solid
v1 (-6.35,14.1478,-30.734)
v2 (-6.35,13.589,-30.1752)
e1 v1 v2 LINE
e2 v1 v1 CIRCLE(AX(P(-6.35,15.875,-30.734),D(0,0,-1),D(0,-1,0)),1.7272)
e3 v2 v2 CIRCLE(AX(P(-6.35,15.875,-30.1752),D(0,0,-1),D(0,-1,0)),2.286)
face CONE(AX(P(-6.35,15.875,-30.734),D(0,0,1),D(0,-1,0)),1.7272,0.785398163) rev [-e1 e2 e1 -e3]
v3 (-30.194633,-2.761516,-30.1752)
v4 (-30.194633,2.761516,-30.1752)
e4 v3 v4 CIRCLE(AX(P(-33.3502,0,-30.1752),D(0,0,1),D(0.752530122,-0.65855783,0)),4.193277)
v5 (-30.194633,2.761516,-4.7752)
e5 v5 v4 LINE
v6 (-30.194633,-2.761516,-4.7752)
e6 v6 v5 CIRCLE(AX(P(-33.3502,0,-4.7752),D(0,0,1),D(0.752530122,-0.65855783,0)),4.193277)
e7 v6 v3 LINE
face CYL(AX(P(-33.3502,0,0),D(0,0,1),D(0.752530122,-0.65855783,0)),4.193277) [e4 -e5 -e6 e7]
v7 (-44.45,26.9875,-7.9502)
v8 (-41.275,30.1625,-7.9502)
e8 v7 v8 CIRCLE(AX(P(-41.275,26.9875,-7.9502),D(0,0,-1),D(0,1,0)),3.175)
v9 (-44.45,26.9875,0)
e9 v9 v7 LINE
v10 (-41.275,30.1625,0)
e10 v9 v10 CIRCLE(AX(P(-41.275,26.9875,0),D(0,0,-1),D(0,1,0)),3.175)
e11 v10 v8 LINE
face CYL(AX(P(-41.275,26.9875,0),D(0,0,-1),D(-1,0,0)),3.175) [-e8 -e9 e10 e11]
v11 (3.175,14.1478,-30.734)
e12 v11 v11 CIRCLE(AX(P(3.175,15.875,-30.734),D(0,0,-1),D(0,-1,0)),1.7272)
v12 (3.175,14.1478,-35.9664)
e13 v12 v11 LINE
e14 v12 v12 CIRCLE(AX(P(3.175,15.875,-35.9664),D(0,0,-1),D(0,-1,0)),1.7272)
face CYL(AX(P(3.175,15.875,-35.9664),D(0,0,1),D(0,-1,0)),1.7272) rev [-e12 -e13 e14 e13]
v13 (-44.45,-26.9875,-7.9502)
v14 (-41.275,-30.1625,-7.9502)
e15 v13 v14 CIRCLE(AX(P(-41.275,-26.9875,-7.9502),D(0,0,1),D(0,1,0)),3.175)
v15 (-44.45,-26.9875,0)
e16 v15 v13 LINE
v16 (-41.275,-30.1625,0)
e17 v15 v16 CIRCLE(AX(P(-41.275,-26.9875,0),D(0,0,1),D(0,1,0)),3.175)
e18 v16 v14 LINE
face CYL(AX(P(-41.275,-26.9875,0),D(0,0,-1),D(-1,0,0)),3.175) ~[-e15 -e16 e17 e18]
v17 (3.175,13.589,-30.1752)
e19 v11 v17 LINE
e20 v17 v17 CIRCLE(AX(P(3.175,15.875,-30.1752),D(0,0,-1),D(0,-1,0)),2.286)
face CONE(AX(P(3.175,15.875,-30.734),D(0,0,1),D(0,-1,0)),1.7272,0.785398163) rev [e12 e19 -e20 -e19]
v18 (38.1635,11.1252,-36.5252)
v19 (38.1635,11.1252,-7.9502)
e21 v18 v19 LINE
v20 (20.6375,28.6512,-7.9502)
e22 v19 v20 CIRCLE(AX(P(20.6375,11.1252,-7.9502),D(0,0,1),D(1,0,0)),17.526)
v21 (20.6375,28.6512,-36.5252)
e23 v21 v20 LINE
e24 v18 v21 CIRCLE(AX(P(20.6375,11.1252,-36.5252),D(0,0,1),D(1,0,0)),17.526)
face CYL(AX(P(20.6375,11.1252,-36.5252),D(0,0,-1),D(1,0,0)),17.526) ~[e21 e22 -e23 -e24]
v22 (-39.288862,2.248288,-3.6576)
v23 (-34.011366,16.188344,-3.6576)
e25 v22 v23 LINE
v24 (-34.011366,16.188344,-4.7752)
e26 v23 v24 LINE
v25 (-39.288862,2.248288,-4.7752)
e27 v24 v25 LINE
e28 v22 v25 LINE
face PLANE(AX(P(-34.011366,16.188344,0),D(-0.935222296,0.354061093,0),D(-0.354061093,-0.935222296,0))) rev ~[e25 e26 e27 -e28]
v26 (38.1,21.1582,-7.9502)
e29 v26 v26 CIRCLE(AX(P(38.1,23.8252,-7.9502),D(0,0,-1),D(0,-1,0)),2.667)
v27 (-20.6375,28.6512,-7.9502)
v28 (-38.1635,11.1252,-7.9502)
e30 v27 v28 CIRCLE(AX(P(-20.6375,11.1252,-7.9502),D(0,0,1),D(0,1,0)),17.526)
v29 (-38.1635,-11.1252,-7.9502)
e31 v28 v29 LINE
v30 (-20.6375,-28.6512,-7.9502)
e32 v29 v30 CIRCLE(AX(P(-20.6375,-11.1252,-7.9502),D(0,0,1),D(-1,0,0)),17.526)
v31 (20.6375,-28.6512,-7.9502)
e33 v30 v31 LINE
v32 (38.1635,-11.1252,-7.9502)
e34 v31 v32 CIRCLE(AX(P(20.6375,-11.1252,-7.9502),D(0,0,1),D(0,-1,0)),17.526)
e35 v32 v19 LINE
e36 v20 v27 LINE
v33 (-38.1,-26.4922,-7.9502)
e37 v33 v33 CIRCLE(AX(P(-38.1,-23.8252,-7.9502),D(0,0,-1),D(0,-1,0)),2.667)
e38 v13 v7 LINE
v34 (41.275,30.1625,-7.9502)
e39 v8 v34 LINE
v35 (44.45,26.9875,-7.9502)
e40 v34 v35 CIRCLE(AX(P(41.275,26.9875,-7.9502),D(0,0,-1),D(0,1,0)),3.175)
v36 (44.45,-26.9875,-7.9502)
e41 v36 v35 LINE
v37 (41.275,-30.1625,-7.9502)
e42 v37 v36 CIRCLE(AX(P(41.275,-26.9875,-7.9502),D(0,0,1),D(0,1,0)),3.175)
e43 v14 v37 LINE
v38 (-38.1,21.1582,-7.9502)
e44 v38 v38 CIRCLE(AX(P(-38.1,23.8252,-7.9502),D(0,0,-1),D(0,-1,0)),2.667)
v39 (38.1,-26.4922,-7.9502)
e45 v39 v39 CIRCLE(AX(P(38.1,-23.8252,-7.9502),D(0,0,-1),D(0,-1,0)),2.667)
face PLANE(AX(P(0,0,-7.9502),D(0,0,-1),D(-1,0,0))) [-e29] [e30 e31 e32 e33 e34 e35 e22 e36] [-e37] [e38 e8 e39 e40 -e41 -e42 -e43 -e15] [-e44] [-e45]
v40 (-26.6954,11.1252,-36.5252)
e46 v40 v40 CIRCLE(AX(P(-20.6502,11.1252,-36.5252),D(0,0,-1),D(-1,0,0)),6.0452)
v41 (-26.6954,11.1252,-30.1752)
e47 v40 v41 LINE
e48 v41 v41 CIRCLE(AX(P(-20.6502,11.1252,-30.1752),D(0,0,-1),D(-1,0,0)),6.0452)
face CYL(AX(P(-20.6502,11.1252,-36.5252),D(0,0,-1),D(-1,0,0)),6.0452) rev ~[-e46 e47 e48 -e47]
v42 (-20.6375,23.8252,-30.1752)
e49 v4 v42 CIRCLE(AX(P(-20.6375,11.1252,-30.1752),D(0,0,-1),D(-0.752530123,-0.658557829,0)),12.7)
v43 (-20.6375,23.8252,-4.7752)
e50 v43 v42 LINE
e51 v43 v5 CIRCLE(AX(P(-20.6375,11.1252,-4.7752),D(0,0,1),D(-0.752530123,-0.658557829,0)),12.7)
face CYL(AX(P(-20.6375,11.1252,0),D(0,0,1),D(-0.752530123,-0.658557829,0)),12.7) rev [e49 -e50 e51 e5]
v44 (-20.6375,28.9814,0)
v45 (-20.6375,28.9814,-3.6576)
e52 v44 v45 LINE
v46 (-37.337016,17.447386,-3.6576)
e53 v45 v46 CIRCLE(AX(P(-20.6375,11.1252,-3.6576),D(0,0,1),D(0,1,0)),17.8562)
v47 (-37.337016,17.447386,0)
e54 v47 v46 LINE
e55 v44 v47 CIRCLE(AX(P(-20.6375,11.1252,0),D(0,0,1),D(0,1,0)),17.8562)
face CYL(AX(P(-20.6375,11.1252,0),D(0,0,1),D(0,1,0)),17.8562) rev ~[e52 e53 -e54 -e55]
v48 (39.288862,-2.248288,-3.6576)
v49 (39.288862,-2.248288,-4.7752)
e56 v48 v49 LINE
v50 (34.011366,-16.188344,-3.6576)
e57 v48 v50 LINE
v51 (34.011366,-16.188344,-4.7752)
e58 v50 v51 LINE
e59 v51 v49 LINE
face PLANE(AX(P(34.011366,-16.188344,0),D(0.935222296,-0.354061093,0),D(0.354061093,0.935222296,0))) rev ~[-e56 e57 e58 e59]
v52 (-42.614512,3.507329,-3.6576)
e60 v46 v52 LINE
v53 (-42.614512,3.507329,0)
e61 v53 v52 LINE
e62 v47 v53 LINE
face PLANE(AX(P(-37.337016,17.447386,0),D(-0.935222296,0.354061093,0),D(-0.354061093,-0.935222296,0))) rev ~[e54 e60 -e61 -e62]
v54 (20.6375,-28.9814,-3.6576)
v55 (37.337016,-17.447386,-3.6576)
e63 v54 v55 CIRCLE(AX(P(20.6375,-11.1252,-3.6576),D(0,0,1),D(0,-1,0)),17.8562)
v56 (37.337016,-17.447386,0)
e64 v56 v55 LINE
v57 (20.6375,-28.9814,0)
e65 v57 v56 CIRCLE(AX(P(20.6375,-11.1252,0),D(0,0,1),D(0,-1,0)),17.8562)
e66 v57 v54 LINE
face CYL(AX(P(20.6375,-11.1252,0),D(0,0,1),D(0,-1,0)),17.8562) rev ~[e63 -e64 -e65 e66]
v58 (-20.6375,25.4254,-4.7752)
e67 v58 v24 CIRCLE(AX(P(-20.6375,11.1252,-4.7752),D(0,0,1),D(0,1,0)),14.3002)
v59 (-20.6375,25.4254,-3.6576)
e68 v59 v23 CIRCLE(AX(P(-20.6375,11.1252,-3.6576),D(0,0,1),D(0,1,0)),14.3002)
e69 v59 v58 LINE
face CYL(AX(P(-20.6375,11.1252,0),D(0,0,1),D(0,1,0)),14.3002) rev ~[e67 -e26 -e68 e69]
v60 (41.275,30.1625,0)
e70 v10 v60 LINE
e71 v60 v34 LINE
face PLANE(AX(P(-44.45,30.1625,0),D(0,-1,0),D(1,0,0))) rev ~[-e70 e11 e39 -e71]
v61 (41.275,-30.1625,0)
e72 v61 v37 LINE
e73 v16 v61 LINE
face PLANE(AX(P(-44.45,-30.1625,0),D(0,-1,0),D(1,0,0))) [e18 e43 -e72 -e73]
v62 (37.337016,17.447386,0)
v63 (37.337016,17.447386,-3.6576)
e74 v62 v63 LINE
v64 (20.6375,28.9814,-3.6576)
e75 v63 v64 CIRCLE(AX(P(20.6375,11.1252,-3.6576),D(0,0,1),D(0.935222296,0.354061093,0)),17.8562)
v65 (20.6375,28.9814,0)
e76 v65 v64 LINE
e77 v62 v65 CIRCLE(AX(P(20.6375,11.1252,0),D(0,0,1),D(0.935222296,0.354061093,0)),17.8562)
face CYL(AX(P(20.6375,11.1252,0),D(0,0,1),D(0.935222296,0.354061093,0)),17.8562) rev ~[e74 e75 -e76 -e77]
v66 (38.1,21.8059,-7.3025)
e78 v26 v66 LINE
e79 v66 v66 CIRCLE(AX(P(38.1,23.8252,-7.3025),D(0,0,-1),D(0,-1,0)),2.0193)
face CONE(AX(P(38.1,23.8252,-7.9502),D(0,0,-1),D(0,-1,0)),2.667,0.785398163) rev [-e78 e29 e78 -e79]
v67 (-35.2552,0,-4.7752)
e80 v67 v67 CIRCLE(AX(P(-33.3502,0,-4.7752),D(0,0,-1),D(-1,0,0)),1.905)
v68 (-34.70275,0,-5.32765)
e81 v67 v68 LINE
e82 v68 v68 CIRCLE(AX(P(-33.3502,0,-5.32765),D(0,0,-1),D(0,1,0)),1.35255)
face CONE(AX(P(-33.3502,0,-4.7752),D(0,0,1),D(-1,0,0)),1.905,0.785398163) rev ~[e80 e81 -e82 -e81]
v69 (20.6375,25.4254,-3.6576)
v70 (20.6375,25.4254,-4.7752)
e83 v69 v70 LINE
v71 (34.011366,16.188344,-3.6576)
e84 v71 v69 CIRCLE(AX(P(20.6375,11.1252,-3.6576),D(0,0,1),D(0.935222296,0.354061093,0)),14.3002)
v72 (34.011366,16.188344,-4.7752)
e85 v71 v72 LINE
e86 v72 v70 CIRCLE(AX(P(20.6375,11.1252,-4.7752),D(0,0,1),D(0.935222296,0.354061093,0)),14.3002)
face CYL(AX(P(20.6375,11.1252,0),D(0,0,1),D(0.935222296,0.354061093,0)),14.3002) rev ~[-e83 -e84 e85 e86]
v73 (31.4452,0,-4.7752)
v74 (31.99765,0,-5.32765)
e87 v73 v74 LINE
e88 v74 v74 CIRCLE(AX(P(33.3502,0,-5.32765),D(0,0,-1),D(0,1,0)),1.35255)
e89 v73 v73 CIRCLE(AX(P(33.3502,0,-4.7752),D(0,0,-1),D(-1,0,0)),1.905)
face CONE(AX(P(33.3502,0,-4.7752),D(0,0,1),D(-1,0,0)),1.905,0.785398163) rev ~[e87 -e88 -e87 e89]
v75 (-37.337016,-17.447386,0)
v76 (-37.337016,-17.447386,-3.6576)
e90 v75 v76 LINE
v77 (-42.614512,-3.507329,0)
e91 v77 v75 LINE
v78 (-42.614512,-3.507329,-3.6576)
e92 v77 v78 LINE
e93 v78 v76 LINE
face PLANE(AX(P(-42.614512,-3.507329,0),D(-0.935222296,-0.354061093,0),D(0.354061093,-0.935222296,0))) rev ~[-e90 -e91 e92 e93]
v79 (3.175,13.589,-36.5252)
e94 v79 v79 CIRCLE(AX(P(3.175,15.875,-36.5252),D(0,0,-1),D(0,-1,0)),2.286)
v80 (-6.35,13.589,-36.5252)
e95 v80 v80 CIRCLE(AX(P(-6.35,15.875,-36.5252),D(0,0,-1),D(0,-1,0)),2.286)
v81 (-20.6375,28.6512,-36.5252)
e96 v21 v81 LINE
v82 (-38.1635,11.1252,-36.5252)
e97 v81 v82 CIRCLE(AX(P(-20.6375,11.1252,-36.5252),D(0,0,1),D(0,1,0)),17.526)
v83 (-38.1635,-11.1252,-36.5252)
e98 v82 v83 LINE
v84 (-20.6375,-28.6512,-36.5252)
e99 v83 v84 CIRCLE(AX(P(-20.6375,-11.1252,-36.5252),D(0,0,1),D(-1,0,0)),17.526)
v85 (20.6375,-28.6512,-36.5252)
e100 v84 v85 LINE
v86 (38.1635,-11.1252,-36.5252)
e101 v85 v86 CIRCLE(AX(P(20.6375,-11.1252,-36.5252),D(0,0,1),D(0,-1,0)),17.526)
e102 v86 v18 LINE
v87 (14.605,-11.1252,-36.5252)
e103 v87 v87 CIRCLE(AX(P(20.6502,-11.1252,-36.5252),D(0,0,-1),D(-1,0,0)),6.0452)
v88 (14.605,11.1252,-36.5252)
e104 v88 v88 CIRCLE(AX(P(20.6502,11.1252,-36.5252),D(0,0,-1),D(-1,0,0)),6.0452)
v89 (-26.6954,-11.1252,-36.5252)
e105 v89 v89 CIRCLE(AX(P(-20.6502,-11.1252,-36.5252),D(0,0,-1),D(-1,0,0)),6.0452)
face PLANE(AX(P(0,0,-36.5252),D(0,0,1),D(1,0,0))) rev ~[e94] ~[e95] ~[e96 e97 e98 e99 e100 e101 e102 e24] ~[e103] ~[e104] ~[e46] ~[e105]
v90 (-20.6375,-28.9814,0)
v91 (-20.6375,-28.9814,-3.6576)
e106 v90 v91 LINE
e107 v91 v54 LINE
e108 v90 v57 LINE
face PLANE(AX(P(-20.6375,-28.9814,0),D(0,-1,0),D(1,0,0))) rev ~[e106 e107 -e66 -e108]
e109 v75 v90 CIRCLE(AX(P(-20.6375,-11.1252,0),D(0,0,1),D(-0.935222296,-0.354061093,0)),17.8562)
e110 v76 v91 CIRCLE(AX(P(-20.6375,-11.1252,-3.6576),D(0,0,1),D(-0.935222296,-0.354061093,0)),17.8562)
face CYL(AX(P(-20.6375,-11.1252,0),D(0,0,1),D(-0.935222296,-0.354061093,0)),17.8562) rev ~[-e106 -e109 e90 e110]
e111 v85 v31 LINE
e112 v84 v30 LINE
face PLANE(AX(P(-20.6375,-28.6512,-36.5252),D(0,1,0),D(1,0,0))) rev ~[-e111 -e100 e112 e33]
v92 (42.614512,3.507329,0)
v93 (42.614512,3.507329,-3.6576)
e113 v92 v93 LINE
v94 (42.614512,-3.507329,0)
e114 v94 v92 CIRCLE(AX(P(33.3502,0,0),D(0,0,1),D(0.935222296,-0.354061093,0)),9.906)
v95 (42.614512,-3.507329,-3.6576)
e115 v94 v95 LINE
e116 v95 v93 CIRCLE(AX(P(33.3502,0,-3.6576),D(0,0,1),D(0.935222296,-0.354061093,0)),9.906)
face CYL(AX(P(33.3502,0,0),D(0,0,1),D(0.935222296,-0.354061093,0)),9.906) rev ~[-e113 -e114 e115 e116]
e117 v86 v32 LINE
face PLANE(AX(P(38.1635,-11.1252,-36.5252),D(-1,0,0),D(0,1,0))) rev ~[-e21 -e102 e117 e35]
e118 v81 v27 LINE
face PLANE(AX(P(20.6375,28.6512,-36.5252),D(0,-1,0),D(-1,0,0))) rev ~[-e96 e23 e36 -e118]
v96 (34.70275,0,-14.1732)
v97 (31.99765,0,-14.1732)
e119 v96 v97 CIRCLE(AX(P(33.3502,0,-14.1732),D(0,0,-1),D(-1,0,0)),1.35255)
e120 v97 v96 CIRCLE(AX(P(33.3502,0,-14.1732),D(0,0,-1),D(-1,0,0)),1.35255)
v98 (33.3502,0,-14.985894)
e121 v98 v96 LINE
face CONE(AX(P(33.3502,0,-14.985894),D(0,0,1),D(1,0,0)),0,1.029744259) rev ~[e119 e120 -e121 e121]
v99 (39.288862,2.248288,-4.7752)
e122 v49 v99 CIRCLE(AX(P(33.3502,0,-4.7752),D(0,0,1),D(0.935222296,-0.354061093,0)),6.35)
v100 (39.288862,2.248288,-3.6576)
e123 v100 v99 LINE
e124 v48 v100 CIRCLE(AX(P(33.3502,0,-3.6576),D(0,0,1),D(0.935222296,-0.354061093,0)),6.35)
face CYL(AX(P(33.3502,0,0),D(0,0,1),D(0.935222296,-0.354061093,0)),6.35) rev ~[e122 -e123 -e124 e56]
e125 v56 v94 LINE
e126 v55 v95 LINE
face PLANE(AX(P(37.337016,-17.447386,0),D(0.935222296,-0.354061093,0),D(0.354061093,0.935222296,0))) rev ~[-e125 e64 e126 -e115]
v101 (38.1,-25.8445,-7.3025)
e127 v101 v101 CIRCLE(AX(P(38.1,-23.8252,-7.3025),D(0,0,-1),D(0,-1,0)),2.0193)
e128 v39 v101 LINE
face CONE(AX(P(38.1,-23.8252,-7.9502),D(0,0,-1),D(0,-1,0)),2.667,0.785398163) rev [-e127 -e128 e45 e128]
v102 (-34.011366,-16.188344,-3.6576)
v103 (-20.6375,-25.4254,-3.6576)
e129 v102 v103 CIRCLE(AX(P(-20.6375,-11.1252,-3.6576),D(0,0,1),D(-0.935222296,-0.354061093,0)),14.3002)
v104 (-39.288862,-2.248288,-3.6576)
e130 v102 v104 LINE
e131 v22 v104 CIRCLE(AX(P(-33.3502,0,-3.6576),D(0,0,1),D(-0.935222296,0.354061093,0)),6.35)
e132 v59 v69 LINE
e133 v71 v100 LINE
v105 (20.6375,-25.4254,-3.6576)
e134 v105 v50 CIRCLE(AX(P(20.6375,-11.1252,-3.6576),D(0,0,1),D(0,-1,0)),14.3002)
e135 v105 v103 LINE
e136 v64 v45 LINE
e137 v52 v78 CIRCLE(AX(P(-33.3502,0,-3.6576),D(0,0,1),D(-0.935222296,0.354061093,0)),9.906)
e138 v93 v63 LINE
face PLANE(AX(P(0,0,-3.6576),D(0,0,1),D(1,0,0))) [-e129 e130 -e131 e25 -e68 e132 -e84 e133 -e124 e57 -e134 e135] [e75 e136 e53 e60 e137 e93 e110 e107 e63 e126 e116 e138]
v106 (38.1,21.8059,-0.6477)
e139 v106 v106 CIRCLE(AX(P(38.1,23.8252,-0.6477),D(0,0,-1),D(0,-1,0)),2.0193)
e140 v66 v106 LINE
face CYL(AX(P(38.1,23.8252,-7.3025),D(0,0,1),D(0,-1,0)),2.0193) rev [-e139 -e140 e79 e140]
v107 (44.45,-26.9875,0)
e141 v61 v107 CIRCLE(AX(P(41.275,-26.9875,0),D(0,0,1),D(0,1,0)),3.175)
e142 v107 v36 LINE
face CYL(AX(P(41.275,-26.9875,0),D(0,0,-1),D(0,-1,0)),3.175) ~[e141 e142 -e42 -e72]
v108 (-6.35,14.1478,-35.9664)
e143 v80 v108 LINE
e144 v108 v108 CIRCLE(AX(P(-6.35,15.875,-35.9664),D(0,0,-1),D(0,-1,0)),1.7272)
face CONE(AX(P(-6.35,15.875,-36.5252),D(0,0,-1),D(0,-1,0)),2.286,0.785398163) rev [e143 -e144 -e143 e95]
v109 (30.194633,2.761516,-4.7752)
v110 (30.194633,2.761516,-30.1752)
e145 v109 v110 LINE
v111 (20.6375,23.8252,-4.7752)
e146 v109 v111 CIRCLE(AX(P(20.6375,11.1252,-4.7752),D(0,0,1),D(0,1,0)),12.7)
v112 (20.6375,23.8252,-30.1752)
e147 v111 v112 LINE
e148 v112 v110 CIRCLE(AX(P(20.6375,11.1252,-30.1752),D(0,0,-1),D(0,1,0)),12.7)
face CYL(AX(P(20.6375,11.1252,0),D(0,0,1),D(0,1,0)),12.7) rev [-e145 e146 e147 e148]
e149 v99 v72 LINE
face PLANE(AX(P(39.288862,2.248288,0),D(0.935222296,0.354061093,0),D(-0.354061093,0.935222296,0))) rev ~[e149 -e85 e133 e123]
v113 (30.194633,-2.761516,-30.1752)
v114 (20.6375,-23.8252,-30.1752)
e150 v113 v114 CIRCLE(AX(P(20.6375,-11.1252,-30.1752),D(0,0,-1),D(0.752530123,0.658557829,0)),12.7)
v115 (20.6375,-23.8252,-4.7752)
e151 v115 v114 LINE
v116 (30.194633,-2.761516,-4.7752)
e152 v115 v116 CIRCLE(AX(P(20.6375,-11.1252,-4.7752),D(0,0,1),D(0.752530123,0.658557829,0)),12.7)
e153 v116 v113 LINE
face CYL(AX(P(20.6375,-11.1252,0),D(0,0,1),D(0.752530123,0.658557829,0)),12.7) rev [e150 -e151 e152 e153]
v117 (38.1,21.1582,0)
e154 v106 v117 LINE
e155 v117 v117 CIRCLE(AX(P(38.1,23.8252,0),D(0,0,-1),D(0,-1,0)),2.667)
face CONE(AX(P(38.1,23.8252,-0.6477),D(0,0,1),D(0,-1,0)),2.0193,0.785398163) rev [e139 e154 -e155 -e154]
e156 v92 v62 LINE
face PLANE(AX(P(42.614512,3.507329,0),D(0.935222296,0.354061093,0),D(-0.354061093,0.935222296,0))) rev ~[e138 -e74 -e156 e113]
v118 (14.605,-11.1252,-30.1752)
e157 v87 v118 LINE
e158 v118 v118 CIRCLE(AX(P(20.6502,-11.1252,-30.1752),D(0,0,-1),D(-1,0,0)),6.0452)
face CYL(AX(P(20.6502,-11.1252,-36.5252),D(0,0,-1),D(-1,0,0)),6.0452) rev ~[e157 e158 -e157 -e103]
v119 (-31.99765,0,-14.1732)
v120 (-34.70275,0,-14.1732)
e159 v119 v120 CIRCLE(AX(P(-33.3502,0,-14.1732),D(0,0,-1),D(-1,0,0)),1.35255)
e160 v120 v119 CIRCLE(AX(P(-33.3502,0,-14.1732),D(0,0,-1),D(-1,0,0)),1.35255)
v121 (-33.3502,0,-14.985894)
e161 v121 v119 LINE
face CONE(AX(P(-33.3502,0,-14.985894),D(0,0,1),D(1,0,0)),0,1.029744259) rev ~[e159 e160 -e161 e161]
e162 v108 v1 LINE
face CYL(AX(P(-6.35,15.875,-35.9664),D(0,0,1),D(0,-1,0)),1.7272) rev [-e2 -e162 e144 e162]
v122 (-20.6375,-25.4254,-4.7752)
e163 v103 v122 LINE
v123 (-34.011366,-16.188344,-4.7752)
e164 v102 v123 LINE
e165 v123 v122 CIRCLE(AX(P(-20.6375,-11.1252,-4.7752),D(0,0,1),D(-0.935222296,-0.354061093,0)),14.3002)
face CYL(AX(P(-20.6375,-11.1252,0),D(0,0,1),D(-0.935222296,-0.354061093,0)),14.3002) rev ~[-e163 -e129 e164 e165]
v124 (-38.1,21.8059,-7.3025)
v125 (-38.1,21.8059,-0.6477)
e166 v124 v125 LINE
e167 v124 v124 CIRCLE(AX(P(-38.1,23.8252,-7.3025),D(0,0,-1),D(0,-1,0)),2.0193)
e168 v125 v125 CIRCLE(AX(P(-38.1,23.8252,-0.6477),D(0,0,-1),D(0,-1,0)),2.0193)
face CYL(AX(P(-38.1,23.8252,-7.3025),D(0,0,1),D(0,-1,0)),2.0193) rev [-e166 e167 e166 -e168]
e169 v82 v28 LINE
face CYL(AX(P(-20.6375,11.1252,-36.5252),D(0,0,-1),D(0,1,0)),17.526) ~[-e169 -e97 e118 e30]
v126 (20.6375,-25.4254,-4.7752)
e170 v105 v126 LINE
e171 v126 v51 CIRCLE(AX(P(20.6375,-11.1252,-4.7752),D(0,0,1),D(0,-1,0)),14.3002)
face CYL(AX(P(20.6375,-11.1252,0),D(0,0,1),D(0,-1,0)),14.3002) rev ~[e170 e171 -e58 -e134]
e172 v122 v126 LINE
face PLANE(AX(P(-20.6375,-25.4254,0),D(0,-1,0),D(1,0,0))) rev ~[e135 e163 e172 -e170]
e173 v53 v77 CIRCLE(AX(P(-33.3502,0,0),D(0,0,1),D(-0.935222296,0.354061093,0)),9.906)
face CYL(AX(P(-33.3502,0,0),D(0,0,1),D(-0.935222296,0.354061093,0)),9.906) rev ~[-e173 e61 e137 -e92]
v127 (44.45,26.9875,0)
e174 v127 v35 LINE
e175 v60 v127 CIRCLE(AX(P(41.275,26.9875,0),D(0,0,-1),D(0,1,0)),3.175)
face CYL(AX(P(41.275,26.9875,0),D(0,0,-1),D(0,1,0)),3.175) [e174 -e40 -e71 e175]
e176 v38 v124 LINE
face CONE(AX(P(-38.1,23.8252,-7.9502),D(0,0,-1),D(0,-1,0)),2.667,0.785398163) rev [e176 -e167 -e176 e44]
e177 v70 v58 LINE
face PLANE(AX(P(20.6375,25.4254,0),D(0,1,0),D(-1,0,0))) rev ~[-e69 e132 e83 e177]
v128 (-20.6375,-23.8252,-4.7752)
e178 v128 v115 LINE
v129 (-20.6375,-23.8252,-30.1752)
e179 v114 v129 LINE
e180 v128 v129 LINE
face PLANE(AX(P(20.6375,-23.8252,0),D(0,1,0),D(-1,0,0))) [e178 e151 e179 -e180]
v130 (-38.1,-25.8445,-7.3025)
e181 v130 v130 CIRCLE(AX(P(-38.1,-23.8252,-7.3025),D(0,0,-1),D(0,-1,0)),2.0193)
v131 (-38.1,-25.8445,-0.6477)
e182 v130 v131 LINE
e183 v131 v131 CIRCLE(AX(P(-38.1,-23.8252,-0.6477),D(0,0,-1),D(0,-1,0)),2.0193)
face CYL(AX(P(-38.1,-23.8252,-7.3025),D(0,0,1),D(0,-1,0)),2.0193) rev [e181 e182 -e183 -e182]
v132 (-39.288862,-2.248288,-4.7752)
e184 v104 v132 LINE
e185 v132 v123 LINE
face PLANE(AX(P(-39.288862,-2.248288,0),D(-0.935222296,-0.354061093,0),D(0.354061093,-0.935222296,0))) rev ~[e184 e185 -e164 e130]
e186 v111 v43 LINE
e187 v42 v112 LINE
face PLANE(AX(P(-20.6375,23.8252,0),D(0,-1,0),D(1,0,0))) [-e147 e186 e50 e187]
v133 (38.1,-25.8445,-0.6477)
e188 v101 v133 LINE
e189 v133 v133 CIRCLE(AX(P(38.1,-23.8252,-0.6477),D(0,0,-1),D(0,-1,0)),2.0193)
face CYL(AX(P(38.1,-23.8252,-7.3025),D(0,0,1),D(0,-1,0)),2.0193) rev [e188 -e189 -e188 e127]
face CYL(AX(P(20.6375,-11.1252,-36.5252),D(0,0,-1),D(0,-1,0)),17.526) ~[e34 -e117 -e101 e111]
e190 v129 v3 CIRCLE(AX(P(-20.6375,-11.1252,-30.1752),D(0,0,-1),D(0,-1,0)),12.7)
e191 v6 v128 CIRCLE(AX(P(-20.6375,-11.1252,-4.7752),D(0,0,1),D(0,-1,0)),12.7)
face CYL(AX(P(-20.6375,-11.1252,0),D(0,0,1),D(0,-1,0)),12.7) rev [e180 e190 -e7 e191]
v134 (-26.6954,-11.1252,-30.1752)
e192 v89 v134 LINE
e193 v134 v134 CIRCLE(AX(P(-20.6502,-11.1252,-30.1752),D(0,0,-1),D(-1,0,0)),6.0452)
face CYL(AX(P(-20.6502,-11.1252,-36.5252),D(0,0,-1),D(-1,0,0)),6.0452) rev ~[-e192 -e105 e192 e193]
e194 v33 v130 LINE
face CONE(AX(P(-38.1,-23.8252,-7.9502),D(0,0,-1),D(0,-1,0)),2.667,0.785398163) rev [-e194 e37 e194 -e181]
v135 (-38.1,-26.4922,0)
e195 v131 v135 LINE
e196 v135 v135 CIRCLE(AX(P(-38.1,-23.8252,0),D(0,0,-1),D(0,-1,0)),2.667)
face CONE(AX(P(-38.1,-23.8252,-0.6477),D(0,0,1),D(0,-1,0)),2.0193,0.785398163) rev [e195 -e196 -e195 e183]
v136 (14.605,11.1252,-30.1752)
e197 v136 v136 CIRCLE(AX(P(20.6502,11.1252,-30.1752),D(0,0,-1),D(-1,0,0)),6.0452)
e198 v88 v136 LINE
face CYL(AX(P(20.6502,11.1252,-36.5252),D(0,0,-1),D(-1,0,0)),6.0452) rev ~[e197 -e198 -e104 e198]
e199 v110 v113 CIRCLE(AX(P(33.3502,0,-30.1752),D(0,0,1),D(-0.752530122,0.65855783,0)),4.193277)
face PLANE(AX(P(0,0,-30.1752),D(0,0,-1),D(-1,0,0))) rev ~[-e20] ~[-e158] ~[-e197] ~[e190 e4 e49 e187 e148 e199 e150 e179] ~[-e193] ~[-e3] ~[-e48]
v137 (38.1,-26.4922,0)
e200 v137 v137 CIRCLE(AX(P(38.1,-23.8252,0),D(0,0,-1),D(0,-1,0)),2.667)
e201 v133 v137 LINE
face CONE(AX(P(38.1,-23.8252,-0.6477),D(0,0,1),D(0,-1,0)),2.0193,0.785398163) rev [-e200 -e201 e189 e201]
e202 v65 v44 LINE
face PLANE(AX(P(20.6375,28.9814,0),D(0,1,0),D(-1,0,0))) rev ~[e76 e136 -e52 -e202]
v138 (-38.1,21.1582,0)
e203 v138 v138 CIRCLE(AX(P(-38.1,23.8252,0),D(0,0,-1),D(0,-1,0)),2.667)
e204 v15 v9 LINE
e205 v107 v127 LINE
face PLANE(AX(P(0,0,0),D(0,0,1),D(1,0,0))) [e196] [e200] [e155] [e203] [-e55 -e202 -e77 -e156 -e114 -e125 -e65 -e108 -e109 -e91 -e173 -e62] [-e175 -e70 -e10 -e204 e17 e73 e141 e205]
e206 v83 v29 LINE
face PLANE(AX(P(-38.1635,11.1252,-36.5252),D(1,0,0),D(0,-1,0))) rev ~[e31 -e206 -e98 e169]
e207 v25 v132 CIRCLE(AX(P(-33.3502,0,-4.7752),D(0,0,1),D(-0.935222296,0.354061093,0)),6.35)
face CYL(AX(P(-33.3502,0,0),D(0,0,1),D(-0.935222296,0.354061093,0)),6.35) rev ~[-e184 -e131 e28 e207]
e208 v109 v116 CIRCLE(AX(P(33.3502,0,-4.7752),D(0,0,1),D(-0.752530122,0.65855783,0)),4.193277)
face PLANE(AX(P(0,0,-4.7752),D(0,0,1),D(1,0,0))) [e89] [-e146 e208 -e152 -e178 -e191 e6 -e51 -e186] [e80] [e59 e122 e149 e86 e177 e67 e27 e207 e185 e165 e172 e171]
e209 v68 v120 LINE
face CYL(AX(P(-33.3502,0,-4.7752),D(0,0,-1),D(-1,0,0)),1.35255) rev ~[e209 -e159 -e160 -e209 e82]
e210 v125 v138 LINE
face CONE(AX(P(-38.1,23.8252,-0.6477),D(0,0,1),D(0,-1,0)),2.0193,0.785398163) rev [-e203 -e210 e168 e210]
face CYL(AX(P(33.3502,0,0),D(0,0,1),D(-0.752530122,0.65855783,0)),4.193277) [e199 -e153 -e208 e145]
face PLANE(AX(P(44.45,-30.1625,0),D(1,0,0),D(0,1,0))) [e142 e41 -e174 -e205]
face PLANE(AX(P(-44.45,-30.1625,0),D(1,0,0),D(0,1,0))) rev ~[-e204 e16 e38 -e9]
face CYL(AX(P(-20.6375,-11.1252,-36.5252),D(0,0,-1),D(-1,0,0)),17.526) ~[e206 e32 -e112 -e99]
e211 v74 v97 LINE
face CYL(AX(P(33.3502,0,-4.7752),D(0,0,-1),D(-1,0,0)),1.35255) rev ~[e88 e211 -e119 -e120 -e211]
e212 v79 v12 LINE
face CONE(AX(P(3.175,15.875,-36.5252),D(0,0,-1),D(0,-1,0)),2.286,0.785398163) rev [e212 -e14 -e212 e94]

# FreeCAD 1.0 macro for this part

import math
import FreeCAD as App
import Part
import Sketcher

V = App.Vector
Q = App.Units.Quantity


def edges_at(feature, points):
    """Names of the edges that pass closest to the given points."""
    edges = feature.Shape.Edges
    near = lambda p: min(range(len(edges)), key=lambda i: edges[i].distToShape(Part.Vertex(*p))[0])
    return sorted({f"Edge{near(p) + 1}" for p in points})


def add_polygon(sketch, points):
    """Adds a closed chain of lines whose ends are joined by coincident constraints."""
    first, n = sketch.GeometryCount, len(points)
    for a, b in zip(points, points[1:] + points[:1]):
        sketch.addGeometry(Part.LineSegment(App.Vector(*a, 0), App.Vector(*b, 0)), False)
    for i in range(n):
        sketch.addConstraint(Sketcher.Constraint("Coincident", first + i, 2, first + (i + 1) % n, 1))

doc = App.newDocument("Part")
body = doc.addObject("PartDesign::Body", "Body")

# Sketch on XY plane
sketch1 = body.newObject("Sketcher::SketchObject", "Sketch")
sketch1.AttachmentSupport = (doc.getObject("XY_Plane"), [""])
sketch1.MapMode = "FlatFace"
add_polygon(sketch1, [(-44, 30), (-44, -30), (44, -30), (44, 30)])  # lines 0-3
sketch1.addConstraint([
    Sketcher.Constraint("Vertical", 0),
    Sketcher.Constraint("Horizontal", 1),
    Sketcher.Constraint("Vertical", 2),
    Sketcher.Constraint("Horizontal", 3),
    Sketcher.Constraint("Symmetric", 0, 2, 2, 2, -1, 1),
    Sketcher.Constraint("DistanceX", 1, 1, 1, 2, Q("3.5 in")),
    Sketcher.Constraint("DistanceY", 0, 2, 0, 1, Q("2.375 in")),
])
pad1 = body.newObject("PartDesign::Pad", "Pad")
pad1.Profile = sketch1
pad1.Length = Q("1.438 in")
pad1.Reversed = True

# Sketch on XY plane
sketch2 = body.newObject("Sketcher::SketchObject", "Sketch001")
sketch2.AttachmentSupport = (doc.getObject("XY_Plane"), [""])
sketch2.MapMode = "FlatFace"
sketch2.addGeometry([
    Part.ArcOfCircle(Part.Circle(V(20.6, 11.1, 0), V(0, 0, 1), 12.7), math.radians(-41), math.radians(90)),  # 0
    Part.LineSegment(V(20.6, 23.8, 0), V(-20.6, 23.8, 0)),  # 1
    Part.ArcOfCircle(Part.Circle(V(-20.6, 11.1, 0), V(0, 0, 1), 12.7), math.radians(90), math.radians(221)),  # 2
    Part.ArcOfCircle(Part.Circle(V(-33.4, 0, 0), V(0, 0, 1), 4.2), math.radians(-41), math.radians(41)),  # 3
    Part.ArcOfCircle(Part.Circle(V(-20.6, -11.1, 0), V(0, 0, 1), 12.7), math.radians(139), math.radians(270)),  # 4
    Part.LineSegment(V(-20.6, -23.8, 0), V(20.6, -23.8, 0)),  # 5
    Part.ArcOfCircle(Part.Circle(V(20.6, -11.1, 0), V(0, 0, 1), 12.7), math.radians(-90), math.radians(41)),  # 6
    Part.ArcOfCircle(Part.Circle(V(33.4, 0, 0), V(0, 0, 1), 4.2), math.radians(139), math.radians(221)),  # 7
], False)
sketch2.addConstraint([
    Sketcher.Constraint("Tangent", 0, 2, 1, 1),
    Sketcher.Constraint("Tangent", 1, 2, 2, 1),
    Sketcher.Constraint("Tangent", 2, 2, 3, 2),
    Sketcher.Constraint("Tangent", 3, 1, 4, 1),
    Sketcher.Constraint("Tangent", 4, 2, 5, 1),
    Sketcher.Constraint("Tangent", 5, 2, 6, 1),
    Sketcher.Constraint("Tangent", 6, 2, 7, 2),
    Sketcher.Constraint("Tangent", 7, 1, 0, 1),
    Sketcher.Constraint("Horizontal", 1),
    Sketcher.Constraint("Horizontal", 5),
    Sketcher.Constraint("Equal", 0, 2),
    Sketcher.Constraint("Equal", 2, 4),
    Sketcher.Constraint("Equal", 4, 6),
    Sketcher.Constraint("Equal", 3, 7),
    Sketcher.Constraint("Symmetric", 0, 3, 4, 3, -1, 1),
    Sketcher.Constraint("Symmetric", 3, 3, 7, 3, -2),
    Sketcher.Constraint("Radius", 0, Q("0.5 in")),
    Sketcher.Constraint("DistanceX", 1, 2, 1, 1, Q("1.625 in")),
    Sketcher.Constraint("DistanceY", -1, 1, 0, 3, Q("0.438 in")),
    Sketcher.Constraint("DistanceX", 3, 3, -1, 1, Q("1.313 in")),
])
pocket1 = body.newObject("PartDesign::Pocket", "Pocket")
pocket1.Profile = sketch2
pocket1.Length = Q("1.188 in")

# Sketch on XY plane
sketch3 = body.newObject("Sketcher::SketchObject", "Sketch002")
sketch3.AttachmentSupport = (doc.getObject("XY_Plane"), [""])
sketch3.MapMode = "FlatFace"
sketch3.addGeometry([
    Part.LineSegment(V(-20.6, -25.4, 0), V(20.6, -25.4, 0)),  # 0
    Part.ArcOfCircle(Part.Circle(V(20.6, -11.1, 0), V(0, 0, 1), 14.3), math.radians(-90), math.radians(-21)),  # 1
    Part.LineSegment(V(34, -16.2, 0), V(39.3, -2.2, 0)),  # 2
    Part.ArcOfCircle(Part.Circle(V(33.4, 0, 0), V(0, 0, 1), 6.4), math.radians(-21), math.radians(21)),  # 3
    Part.LineSegment(V(39.3, 2.2, 0), V(34, 16.2, 0)),  # 4
    Part.ArcOfCircle(Part.Circle(V(20.6, 11.1, 0), V(0, 0, 1), 14.3), math.radians(21), math.radians(90)),  # 5
    Part.LineSegment(V(20.6, 25.4, 0), V(-20.6, 25.4, 0)),  # 6
    Part.ArcOfCircle(Part.Circle(V(-20.6, 11.1, 0), V(0, 0, 1), 14.3), math.radians(90), math.radians(159)),  # 7
    Part.LineSegment(V(-34, 16.2, 0), V(-39.3, 2.2, 0)),  # 8
    Part.ArcOfCircle(Part.Circle(V(-33.4, 0, 0), V(0, 0, 1), 6.4), math.radians(159), math.radians(201)),  # 9
    Part.LineSegment(V(-39.3, -2.2, 0), V(-34, -16.2, 0)),  # 10
    Part.ArcOfCircle(Part.Circle(V(-20.6, -11.1, 0), V(0, 0, 1), 14.3), math.radians(-159), math.radians(-90)),  # 11
], False)
sketch3.addConstraint([
    Sketcher.Constraint("Tangent", 0, 2, 1, 1),
    Sketcher.Constraint("Tangent", 1, 2, 2, 1),
    Sketcher.Constraint("Tangent", 2, 2, 3, 1),
    Sketcher.Constraint("Tangent", 3, 2, 4, 1),
    Sketcher.Constraint("Tangent", 4, 2, 5, 1),
    Sketcher.Constraint("Tangent", 5, 2, 6, 1),
    Sketcher.Constraint("Tangent", 6, 2, 7, 1),
    Sketcher.Constraint("Tangent", 7, 2, 8, 1),
    Sketcher.Constraint("Tangent", 8, 2, 9, 1),
    Sketcher.Constraint("Tangent", 9, 2, 10, 1),
    Sketcher.Constraint("Tangent", 10, 2, 11, 1),
    Sketcher.Constraint("Tangent", 11, 2, 0, 1),
    Sketcher.Constraint("Horizontal", 0),
    Sketcher.Constraint("Horizontal", 6),
    Sketcher.Constraint("Equal", 1, 5),
    Sketcher.Constraint("Equal", 5, 7),
    Sketcher.Constraint("Equal", 3, 9),
    Sketcher.Constraint("Equal", 7, 11),
    Sketcher.Constraint("Symmetric", 1, 3, 7, 3, -1, 1),
    Sketcher.Constraint("Symmetric", 3, 3, 9, 3, -1, 1),
    Sketcher.Constraint("Symmetric", 4, 2, 7, 2, -2),
    Sketcher.Constraint("Parallel", 4, 10),
    Sketcher.Constraint("Radius", 3, Q("0.25 in")),
    Sketcher.Constraint("Radius", 1, Q("0.563 in")),
    Sketcher.Constraint("DistanceX", 0, 1, 0, 2, Q("1.625 in")),
    Sketcher.Constraint("DistanceY", 1, 3, -1, 1, Q("0.438 in")),
    Sketcher.Constraint("DistanceX", -1, 1, 3, 3, Q("1.313 in")),
])
pocket2 = body.newObject("PartDesign::Pocket", "Pocket001")
pocket2.Profile = sketch3
pocket2.Length = Q("0.188 in")

# Sketch on XY plane
sketch4 = body.newObject("Sketcher::SketchObject", "Sketch003")
sketch4.AttachmentSupport = (doc.getObject("XY_Plane"), [""])
sketch4.MapMode = "FlatFace"
sketch4.AttachmentOffset = App.Placement(V(0, 0, -1.438 * 25.4), App.Rotation())
sketch4.addGeometry([
    Part.Circle(V(21, 11, 0), V(0, 0, 1), 6),
    Part.Circle(V(21, -11, 0), V(0, 0, 1), 6),
    Part.Circle(V(-21, 11, 0), V(0, 0, 1), 6),
    Part.Circle(V(-21, -11, 0), V(0, 0, 1), 6),
], False)
sketch4.addConstraint([
    Sketcher.Constraint("Equal", 0, 1),
    Sketcher.Constraint("Equal", 1, 2),
    Sketcher.Constraint("Equal", 2, 3),
    Sketcher.Constraint("Symmetric", 1, 3, 2, 3, -1, 1),
    Sketcher.Constraint("Symmetric", 0, 3, 3, 3, -1, 1),
    Sketcher.Constraint("Symmetric", 0, 3, 2, 3, -2),
    Sketcher.Constraint("Diameter", 0, Q("0.476 in")),
    Sketcher.Constraint("DistanceX", -1, 1, 0, 3, Q("0.813 in")),
    Sketcher.Constraint("DistanceY", -1, 1, 0, 3, Q("0.438 in")),
])
pocket3 = body.newObject("PartDesign::Pocket", "Pocket002")
pocket3.Profile = sketch4
pocket3.Type = "ThroughAll"
pocket3.Reversed = True

# Sketch on XY plane
sketch5 = body.newObject("Sketcher::SketchObject", "Sketch004")
sketch5.AttachmentSupport = (doc.getObject("XY_Plane"), [""])
sketch5.MapMode = "FlatFace"
sketch5.addGeometry([
    Part.LineSegment(V(21, 29, 0), V(-21, 29, 0)),  # 0
    Part.ArcOfCircle(Part.Circle(V(-21, 11, 0), V(0, 0, 1), 18), math.radians(90), math.radians(159)),  # 1
    Part.LineSegment(V(-37, 17, 0), V(-43, 4, 0)),  # 2
    Part.ArcOfCircle(Part.Circle(V(-33, 0, 0), V(0, 0, 1), 10), math.radians(159), math.radians(201)),  # 3
    Part.LineSegment(V(-43, -4, 0), V(-37, -17, 0)),  # 4
    Part.ArcOfCircle(Part.Circle(V(-21, -11, 0), V(0, 0, 1), 18), math.radians(-159), math.radians(-90)),  # 5
    Part.LineSegment(V(-21, -29, 0), V(21, -29, 0)),  # 6
    Part.ArcOfCircle(Part.Circle(V(21, -11, 0), V(0, 0, 1), 18), math.radians(-90), math.radians(-21)),  # 7
    Part.LineSegment(V(37, -17, 0), V(43, -4, 0)),  # 8
    Part.ArcOfCircle(Part.Circle(V(33, 0, 0), V(0, 0, 1), 10), math.radians(-21), math.radians(21)),  # 9
    Part.LineSegment(V(43, 4, 0), V(37, 17, 0)),  # 10
    Part.ArcOfCircle(Part.Circle(V(21, 11, 0), V(0, 0, 1), 18), math.radians(21), math.radians(90)),  # 11
], False)
sketch5.addConstraint([
    Sketcher.Constraint("Tangent", 0, 2, 1, 1),
    Sketcher.Constraint("Tangent", 1, 2, 2, 1),
    Sketcher.Constraint("Tangent", 2, 2, 3, 1),
    Sketcher.Constraint("Tangent", 3, 2, 4, 1),
    Sketcher.Constraint("Tangent", 4, 2, 5, 1),
    Sketcher.Constraint("Tangent", 5, 2, 6, 1),
    Sketcher.Constraint("Tangent", 6, 2, 7, 1),
    Sketcher.Constraint("Tangent", 7, 2, 8, 1),
    Sketcher.Constraint("Tangent", 8, 2, 9, 1),
    Sketcher.Constraint("Tangent", 9, 2, 10, 1),
    Sketcher.Constraint("Tangent", 10, 2, 11, 1),
    Sketcher.Constraint("Tangent", 11, 2, 0, 1),
    Sketcher.Constraint("Horizontal", 0),
    Sketcher.Constraint("Horizontal", 6),
    Sketcher.Constraint("Equal", 1, 5),
    Sketcher.Constraint("Equal", 5, 7),
    Sketcher.Constraint("Equal", 3, 9),
    Sketcher.Constraint("Equal", 7, 11),
    Sketcher.Constraint("Symmetric", 1, 3, 7, 3, -1, 1),
    Sketcher.Constraint("Symmetric", 3, 3, 9, 3, -1, 1),
    Sketcher.Constraint("Symmetric", 4, 2, 7, 2, -2),
    Sketcher.Constraint("Parallel", 4, 10),
    Sketcher.Constraint("Radius", 3, Q("0.39 in")),
    Sketcher.Constraint("Radius", 1, Q("0.703 in")),
    Sketcher.Constraint("DistanceX", 0, 2, 0, 1, Q("1.625 in")),
    Sketcher.Constraint("DistanceY", -1, 1, 1, 3, Q("0.438 in")),
    Sketcher.Constraint("DistanceX", 3, 3, -1, 1, Q("1.313 in")),
])
pocket4 = body.newObject("PartDesign::Pocket", "Pocket003")
pocket4.Profile = sketch5
pocket4.Length = Q("0.144 in")

# Sketch on XY plane
sketch6 = body.newObject("Sketcher::SketchObject", "Sketch005")
sketch6.AttachmentSupport = (doc.getObject("XY_Plane"), [""])
sketch6.MapMode = "FlatFace"
sketch6.AttachmentOffset = App.Placement(V(0, 0, -1.438 * 25.4), App.Rotation())
add_polygon(sketch6, [(57, 43), (57, -43), (-57, -43), (-57, 43)])  # lines 0-3
sketch6.addGeometry(Part.ArcOfCircle(Part.Circle(V(-21, -11, 0), V(0, 0, 1), 18), math.radians(180), math.radians(270)), False)  # 4
sketch6.addGeometry(Part.LineSegment(V(-21, -29, 0), V(21, -29, 0)), False)  # 5
sketch6.addGeometry(Part.ArcOfCircle(Part.Circle(V(21, -11, 0), V(0, 0, 1), 18), math.radians(-90), math.radians(0)), False)  # 6
sketch6.addGeometry(Part.LineSegment(V(38, -11, 0), V(38, 11, 0)), False)  # 7
sketch6.addGeometry(Part.ArcOfCircle(Part.Circle(V(21, 11, 0), V(0, 0, 1), 18), math.radians(0), math.radians(90)), False)  # 8
sketch6.addGeometry(Part.LineSegment(V(21, 29, 0), V(-21, 29, 0)), False)  # 9
sketch6.addGeometry(Part.ArcOfCircle(Part.Circle(V(-21, 11, 0), V(0, 0, 1), 18), math.radians(90), math.radians(180)), False)  # 10
sketch6.addGeometry(Part.LineSegment(V(-38, 11, 0), V(-38, -11, 0)), False)  # 11
sketch6.addConstraint([
    Sketcher.Constraint("Tangent", 4, 2, 5, 1),
    Sketcher.Constraint("Tangent", 5, 2, 6, 1),
    Sketcher.Constraint("Tangent", 6, 2, 7, 1),
    Sketcher.Constraint("Tangent", 7, 2, 8, 1),
    Sketcher.Constraint("Tangent", 8, 2, 9, 1),
    Sketcher.Constraint("Tangent", 9, 2, 10, 1),
    Sketcher.Constraint("Tangent", 10, 2, 11, 1),
    Sketcher.Constraint("Tangent", 11, 2, 4, 1),
    Sketcher.Constraint("Vertical", 0),
    Sketcher.Constraint("Horizontal", 1),
    Sketcher.Constraint("Vertical", 2),
    Sketcher.Constraint("Horizontal", 3),
    Sketcher.Constraint("Horizontal", 5),
    Sketcher.Constraint("Vertical", 7),
    Sketcher.Constraint("Horizontal", 9),
    Sketcher.Constraint("Vertical", 11),
    Sketcher.Constraint("Equal", 4, 6),
    Sketcher.Constraint("Equal", 6, 8),
    Sketcher.Constraint("Equal", 8, 10),
    Sketcher.Constraint("Symmetric", 4, 3, 8, 3, -1, 1),
    Sketcher.Constraint("Symmetric", 0, 2, 2, 2, -1, 1),
    Sketcher.Constraint("Radius", 4, Q("0.69 in")),
    Sketcher.Constraint("DistanceX", 5, 1, 5, 2, Q("1.625 in")),
    Sketcher.Constraint("DistanceY", 7, 1, 7, 2, Q("0.876 in")),
    Sketcher.Constraint("DistanceX", 1, 2, 1, 1, 113.594),
    Sketcher.Constraint("DistanceY", 0, 2, 0, 1, 85.018),
])
pocket5 = body.newObject("PartDesign::Pocket", "Pocket004")
pocket5.Profile = sketch6
pocket5.Length = Q("1.125 in")
pocket5.Reversed = True

# Sketch on YZ plane
sketch7 = body.newObject("Sketcher::SketchObject", "Sketch006")
sketch7.AttachmentSupport = (doc.getObject("YZ_Plane"), [""])
sketch7.MapMode = "FlatFace"
sketch7.AttachmentOffset = App.Placement(V(0, 0, 1.5 * 25.4), App.Rotation())
add_polygon(sketch7, [(23.8, -8), (23.8, 0), (21.2, 0), (21.8, -0.6), (21.8, -7.3), (21.2, -8)])  # lines 0-5
sketch7.addGeometry(Part.LineSegment(V(23.8, 0, 0), V(23.8, -8, 0)), True)  # axis
sketch7.addConstraint([
    Sketcher.Constraint("Vertical", 0),
    Sketcher.Constraint("Horizontal", 1),
    Sketcher.Constraint("Vertical", 3),
    Sketcher.Constraint("Horizontal", 5),
    Sketcher.Constraint("Vertical", 6),
    Sketcher.Constraint("Coincident", 6, 1, 0, 2),
    Sketcher.Constraint("PointOnObject", 0, 2, -1),
    Sketcher.Constraint("Perpendicular", 2, 4),
    Sketcher.Constraint("Horizontal", 4, 2, 6, 2),
    Sketcher.Constraint("Vertical", 1, 2, 4, 2),
    Sketcher.Constraint("Equal", 2, 4),
    Sketcher.Constraint("DistanceX", 1, 2, 1, 1, Q("0.105 in")),
    Sketcher.Constraint("DistanceY", 0, 1, 0, 2, Q("0.313 in")),
    Sketcher.Constraint("DistanceY", 3, 2, 3, 1, Q("0.262 in")),
    Sketcher.Constraint("DistanceX", -1, 1, 0, 2, Q("0.938 in")),
])
groove = body.newObject("PartDesign::Groove", "Groove")
groove.Profile = sketch7
groove.ReferenceAxis = (sketch7, ["Axis0"])
groove.Angle = 360
doc.recompute()

linearpattern = body.newObject("PartDesign::LinearPattern", "LinearPattern")
linearpattern.Originals = [groove]
linearpattern.Direction = (doc.getObject("Y_Axis"), [""])
linearpattern.Mode = "offset"
linearpattern.Offset = Q("1.876 in")
linearpattern.Occurrences = 2
linearpattern.Reversed = True
body.Tip = linearpattern
doc.recompute()

linearpattern2 = body.newObject("PartDesign::LinearPattern", "LinearPattern001")
linearpattern2.Originals = [groove]
linearpattern2.Direction = (doc.getObject("X_Axis"), [""])
linearpattern2.Mode = "offset"
linearpattern2.Offset = Q("3 in")
linearpattern2.Occurrences = 2
linearpattern2.Reversed = True
body.Tip = linearpattern2
doc.recompute()

datumline = body.newObject("PartDesign::Line", "DatumLine")
datumline.Placement = App.Placement(V(0, 0, 0), App.Rotation(V(0, 0, 1), V(-0.847871258, -0.53020216, 0)))
linearpattern3 = body.newObject("PartDesign::LinearPattern", "LinearPattern002")
linearpattern3.Originals = [groove]
linearpattern3.Direction = (datumline, [""])
linearpattern3.Mode = "offset"
linearpattern3.Offset = 89.872135
linearpattern3.Occurrences = 2
body.Tip = linearpattern3

# Sketch on XY plane
sketch8 = body.newObject("Sketcher::SketchObject", "Sketch007")
sketch8.AttachmentSupport = (doc.getObject("XY_Plane"), [""])
sketch8.MapMode = "FlatFace"
sketch8.AttachmentOffset = App.Placement(V(0, 0, -0.188 * 25.4), App.Rotation())
sketch8.addGeometry([
    Part.Circle(V(33.4, 0, 0), V(0, 0, 1), 1.4),
    Part.Circle(V(-33.4, 0, 0), V(0, 0, 1), 1.4),
], False)
sketch8.addConstraint([
    Sketcher.Constraint("Equal", 0, 1),
    Sketcher.Constraint("Symmetric", 0, 3, 1, 3, -1, 1),
    Sketcher.Constraint("PointOnObject", 0, 3, -1),
    Sketcher.Constraint("Diameter", 0, Q("0.1065 in")),
    Sketcher.Constraint("DistanceX", -1, 1, 0, 3, Q("1.313 in")),
])
doc.recompute()
hole = body.newObject("PartDesign::Hole", "Hole")
hole.Profile = sketch8
hole.ThreadType = "None"
hole.Diameter = Q("0.1065 in")
hole.DepthType = "Dimension"
hole.Depth = Q("0.37 in")
hole.DrillPoint = "Angled"
hole.DrillPointAngle = 118
hole.HoleCutType = "Countersink"
hole.HoleCutDiameter = Q("0.15 in")
hole.HoleCutCountersinkAngle = 90
doc.recompute()

fillet = body.newObject("PartDesign::Fillet", "Fillet")
fillet.Base = (hole, edges_at(hole, [
    (-44.45, -30.163, -3.975),
    (44.45, -30.163, -3.975),
    (44.45, 30.163, -3.975),
    (-44.45, 30.163, -3.975),
]))
fillet.Radius = Q("0.125 in")

# Sketch on YZ plane
sketch9 = body.newObject("Sketcher::SketchObject", "Sketch008")
sketch9.AttachmentSupport = (doc.getObject("YZ_Plane"), [""])
sketch9.MapMode = "FlatFace"
sketch9.AttachmentOffset = App.Placement(V(0, 0, -0.25 * 25.4), App.Rotation())
add_polygon(sketch9, [(15.9, -36.5), (15.9, -30.2), (13.6, -30.2), (14.1, -30.7), (14.1, -36), (13.6, -36.5)])  # lines 0-5
sketch9.addGeometry(Part.LineSegment(V(15.9, -30.2, 0), V(15.9, -36.5, 0)), True)  # axis
sketch9.addConstraint([
    Sketcher.Constraint("Vertical", 0),
    Sketcher.Constraint("Horizontal", 1),
    Sketcher.Constraint("Vertical", 3),
    Sketcher.Constraint("Horizontal", 5),
    Sketcher.Constraint("Vertical", 6),
    Sketcher.Constraint("Coincident", 6, 1, 0, 2),
    Sketcher.Constraint("Perpendicular", 2, 4),
    Sketcher.Constraint("Horizontal", 4, 2, 6, 2),
    Sketcher.Constraint("Vertical", 1, 2, 4, 2),
    Sketcher.Constraint("Equal", 2, 4),
    Sketcher.Constraint("DistanceX", 1, 2, 1, 1, Q("0.09 in")),
    Sketcher.Constraint("DistanceY", 0, 1, 0, 2, Q("0.25 in")),
    Sketcher.Constraint("DistanceY", 3, 2, 3, 1, Q("0.206 in")),
    Sketcher.Constraint("DistanceY", 2, 2, -1, 1, Q("1.21 in")),
    Sketcher.Constraint("DistanceX", -1, 1, 0, 2, Q("0.625 in")),
])
groove2 = body.newObject("PartDesign::Groove", "Groove001")
groove2.Profile = sketch9
groove2.ReferenceAxis = (sketch9, ["Axis0"])
groove2.Angle = 360
doc.recompute()

linearpattern4 = body.newObject("PartDesign::LinearPattern", "LinearPattern003")
linearpattern4.Originals = [groove2]
linearpattern4.Direction = (doc.getObject("X_Axis"), [""])
linearpattern4.Mode = "offset"
linearpattern4.Offset = Q("0.375 in")
linearpattern4.Occurrences = 2
body.Tip = linearpattern4

doc.recompute()
